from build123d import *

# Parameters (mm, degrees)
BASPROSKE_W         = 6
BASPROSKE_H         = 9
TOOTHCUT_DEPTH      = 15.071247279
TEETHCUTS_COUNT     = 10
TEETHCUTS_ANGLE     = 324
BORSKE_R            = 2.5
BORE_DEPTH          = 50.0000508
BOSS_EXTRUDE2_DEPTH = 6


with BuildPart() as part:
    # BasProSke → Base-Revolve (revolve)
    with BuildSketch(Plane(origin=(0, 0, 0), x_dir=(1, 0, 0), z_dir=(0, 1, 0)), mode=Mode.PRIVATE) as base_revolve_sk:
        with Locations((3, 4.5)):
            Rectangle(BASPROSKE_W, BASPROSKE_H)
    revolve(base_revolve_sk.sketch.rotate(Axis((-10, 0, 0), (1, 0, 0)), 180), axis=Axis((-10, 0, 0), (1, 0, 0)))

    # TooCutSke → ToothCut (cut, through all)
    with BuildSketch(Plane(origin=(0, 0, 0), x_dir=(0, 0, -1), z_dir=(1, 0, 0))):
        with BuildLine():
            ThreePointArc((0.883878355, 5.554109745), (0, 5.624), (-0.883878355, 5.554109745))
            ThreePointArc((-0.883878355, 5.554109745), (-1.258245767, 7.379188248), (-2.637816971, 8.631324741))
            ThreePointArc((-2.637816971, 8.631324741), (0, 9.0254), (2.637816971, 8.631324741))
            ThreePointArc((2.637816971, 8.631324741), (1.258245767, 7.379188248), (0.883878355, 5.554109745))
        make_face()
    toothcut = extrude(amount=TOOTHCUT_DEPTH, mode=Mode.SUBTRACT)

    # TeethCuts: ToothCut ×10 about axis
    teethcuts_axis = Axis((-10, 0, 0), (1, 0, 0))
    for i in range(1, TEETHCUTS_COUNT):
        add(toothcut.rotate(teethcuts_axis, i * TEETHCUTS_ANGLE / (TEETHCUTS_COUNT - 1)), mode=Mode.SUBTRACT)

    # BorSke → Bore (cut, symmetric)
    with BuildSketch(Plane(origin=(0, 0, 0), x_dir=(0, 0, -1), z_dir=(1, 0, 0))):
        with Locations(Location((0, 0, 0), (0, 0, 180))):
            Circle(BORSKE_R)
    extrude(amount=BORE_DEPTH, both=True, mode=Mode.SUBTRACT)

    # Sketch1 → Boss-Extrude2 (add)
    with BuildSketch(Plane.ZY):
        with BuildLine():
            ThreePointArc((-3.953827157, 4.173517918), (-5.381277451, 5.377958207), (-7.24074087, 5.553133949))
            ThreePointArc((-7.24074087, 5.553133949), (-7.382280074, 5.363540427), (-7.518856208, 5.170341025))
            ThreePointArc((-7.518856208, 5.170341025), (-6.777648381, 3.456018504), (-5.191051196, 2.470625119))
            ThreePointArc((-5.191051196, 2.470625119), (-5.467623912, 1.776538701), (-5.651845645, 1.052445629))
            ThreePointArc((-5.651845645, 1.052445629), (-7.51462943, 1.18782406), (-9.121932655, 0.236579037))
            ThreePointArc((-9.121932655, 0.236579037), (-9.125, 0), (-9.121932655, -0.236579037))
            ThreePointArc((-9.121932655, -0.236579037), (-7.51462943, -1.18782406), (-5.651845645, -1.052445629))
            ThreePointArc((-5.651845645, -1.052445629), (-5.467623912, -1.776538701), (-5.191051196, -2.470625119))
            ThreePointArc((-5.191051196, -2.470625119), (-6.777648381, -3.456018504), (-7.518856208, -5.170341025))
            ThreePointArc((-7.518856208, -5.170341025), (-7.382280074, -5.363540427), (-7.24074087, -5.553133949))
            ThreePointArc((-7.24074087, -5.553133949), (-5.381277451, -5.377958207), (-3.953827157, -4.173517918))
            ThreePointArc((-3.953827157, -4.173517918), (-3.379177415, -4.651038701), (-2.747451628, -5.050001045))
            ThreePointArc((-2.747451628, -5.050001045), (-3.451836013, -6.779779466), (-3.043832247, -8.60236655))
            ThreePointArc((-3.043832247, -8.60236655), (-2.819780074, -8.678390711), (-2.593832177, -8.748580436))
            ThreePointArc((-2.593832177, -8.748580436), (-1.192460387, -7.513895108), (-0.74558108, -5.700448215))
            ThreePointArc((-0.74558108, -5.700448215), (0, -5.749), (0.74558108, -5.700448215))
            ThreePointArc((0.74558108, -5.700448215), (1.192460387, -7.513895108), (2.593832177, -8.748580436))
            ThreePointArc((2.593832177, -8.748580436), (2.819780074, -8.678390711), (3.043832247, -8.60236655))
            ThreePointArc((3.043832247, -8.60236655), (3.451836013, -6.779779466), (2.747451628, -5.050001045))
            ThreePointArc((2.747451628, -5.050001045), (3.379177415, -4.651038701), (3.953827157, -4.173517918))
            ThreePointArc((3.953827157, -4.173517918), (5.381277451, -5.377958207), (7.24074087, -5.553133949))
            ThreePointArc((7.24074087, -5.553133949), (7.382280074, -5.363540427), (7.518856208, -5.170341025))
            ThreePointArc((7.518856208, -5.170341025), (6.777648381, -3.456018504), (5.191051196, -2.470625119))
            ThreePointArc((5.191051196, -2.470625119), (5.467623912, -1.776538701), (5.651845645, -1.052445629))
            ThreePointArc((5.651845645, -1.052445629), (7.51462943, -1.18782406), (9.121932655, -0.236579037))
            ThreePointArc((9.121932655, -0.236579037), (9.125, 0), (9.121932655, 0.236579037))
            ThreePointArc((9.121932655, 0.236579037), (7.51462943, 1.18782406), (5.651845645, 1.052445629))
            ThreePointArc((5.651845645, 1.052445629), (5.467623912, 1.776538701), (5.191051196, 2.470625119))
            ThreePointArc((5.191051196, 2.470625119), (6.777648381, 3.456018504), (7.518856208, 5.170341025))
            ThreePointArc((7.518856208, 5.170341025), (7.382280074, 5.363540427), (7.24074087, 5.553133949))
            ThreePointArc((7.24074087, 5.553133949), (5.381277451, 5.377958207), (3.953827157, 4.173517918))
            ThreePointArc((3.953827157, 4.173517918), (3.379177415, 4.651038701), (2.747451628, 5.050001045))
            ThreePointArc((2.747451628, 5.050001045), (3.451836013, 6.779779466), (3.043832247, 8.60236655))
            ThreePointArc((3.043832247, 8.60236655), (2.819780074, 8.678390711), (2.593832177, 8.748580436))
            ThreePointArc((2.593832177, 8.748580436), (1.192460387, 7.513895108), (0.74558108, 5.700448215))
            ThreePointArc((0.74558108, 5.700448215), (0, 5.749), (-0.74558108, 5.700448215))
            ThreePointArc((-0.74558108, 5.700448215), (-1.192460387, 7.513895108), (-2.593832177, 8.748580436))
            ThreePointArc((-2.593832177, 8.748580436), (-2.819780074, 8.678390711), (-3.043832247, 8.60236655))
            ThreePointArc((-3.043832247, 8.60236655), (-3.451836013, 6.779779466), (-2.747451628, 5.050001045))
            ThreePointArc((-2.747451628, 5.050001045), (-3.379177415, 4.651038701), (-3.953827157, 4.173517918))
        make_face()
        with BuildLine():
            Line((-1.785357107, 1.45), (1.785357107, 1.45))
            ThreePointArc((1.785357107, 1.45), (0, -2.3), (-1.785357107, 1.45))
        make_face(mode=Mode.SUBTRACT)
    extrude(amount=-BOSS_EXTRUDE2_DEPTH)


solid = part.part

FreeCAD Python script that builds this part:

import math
import FreeCAD as App
import Part
import Sketcher

V = App.Vector
Q = App.Units.Quantity

doc = App.newDocument("Part")
body = doc.addObject("PartDesign::Body", "Body")

# Sketch on XZ plane
sketch1 = body.newObject("Sketcher::SketchObject", "Sketch")
sketch1.AttachmentSupport = (doc.getObject("XZ_Plane"), [""])
sketch1.MapMode = "FlatFace"
sketch1.addGeometry([
    Part.LineSegment(V(0, -9, 0), V(0, 0, 0)),
    Part.LineSegment(V(0, 0, 0), V(6, 0, 0)),
    Part.LineSegment(V(6, 0, 0), V(6, -9, 0)),
    Part.LineSegment(V(6, -9, 0), V(0, -9, 0)),
], False)
sketch1.addConstraint([
    Sketcher.Constraint("Coincident", 0, 2, 1, 1),
    Sketcher.Constraint("Coincident", 1, 2, 2, 1),
    Sketcher.Constraint("Coincident", 2, 2, 3, 1),
    Sketcher.Constraint("Coincident", 3, 2, 0, 1),
    Sketcher.Constraint("Vertical", 0),
    Sketcher.Constraint("Horizontal", 1),
    Sketcher.Constraint("Vertical", 2),
    Sketcher.Constraint("Horizontal", 3),
    Sketcher.Constraint("Coincident", 0, 2, -1, 1),
    Sketcher.Constraint("DistanceX", 1, 1, 1, 2, Q("6 mm")),
    Sketcher.Constraint("DistanceY", 0, 1, 0, 2, Q("9 mm")),
])
revolution = body.newObject("PartDesign::Revolution", "Revolution")
revolution.Profile = sketch1
revolution.ReferenceAxis = (sketch1, ["H_Axis"])
revolution.Angle = 360

# Sketch on YZ plane
sketch2 = body.newObject("Sketcher::SketchObject", "Sketch001")
sketch2.AttachmentSupport = (doc.getObject("YZ_Plane"), [""])
sketch2.MapMode = "FlatFace"
sketch2.addGeometry([
    Part.ArcOfCircle(Part.Circle(V(0, 0, 0), V(0, 0, 1), 5.6), math.radians(-9.04), math.radians(9.04)),
    Part.ArcOfCircle(Part.Circle(V(5.9, -3.9, 0), V(0, 0, 1), 3), math.radians(24), math.radians(96)),
    Part.ArcOfCircle(Part.Circle(V(0, 0, 0), V(0, 0, 1), 9), math.radians(-17), math.radians(17)),
    Part.ArcOfCircle(Part.Circle(V(5.9, 3.9, 0), V(0, 0, 1), 3), math.radians(-96), math.radians(-24)),
], False)
sketch2.addConstraint([
    Sketcher.Constraint("Coincident", 0, 1, 1, 2),
    Sketcher.Constraint("Coincident", 1, 1, 2, 1),
    Sketcher.Constraint("Coincident", 2, 2, 3, 2),
    Sketcher.Constraint("Coincident", 3, 1, 0, 2),
    Sketcher.Constraint("Coincident", 0, 3, -1, 1),
    Sketcher.Constraint("Coincident", 2, 3, -1, 1),
    Sketcher.Constraint("Equal", 1, 3),
    Sketcher.Constraint("Symmetric", 1, 3, 3, 3, -1),
    Sketcher.Constraint("Radius", 1, Q("3 mm")),
    Sketcher.Constraint("Radius", 0, Q("5.624 mm")),
    Sketcher.Constraint("Radius", 2, Q("9.0254 mm")),
    Sketcher.Constraint("DistanceX", 1, 3, 1, 1, Q("2.737698 mm")),
    Sketcher.Constraint("DistanceX", -1, 1, 0, 1, Q("5.55411 mm")),
])
pocket1 = body.newObject("PartDesign::Pocket", "Pocket")
pocket1.Profile = sketch2
pocket1.Type = "ThroughAll"
pocket1.Reversed = True
doc.recompute()

polarpattern = body.newObject("PartDesign::PolarPattern", "PolarPattern")
polarpattern.Originals = [pocket1]
polarpattern.Axis = (doc.getObject("X_Axis"), [""])
polarpattern.Angle = 360
polarpattern.Occurrences = 10
body.Tip = polarpattern

# Sketch on YZ plane
sketch3 = body.newObject("Sketcher::SketchObject", "Sketch002")
sketch3.AttachmentSupport = (doc.getObject("YZ_Plane"), [""])
sketch3.MapMode = "FlatFace"
sketch3.addGeometry(Part.Circle(V(0, 0, 0), V(0, 0, 1), 2.5), False)
sketch3.addConstraint([
    Sketcher.Constraint("Coincident", 0, 3, -1, 1),
    Sketcher.Constraint("Diameter", 0, Q("5 mm")),
])
pocket2 = body.newObject("PartDesign::Pocket", "Pocket001")
pocket2.Profile = sketch3
pocket2.Length = 100.000102
pocket2.Midplane = True

# Sketch on YZ plane
sketch4 = body.newObject("Sketcher::SketchObject", "Sketch003")
sketch4.AttachmentSupport = (doc.getObject("YZ_Plane"), [""])
sketch4.MapMode = "FlatFace"
sketch4.addGeometry([
    Part.ArcOfCircle(Part.Circle(V(2.5, -6.59, 0), V(0, 0, 1), 3.13), math.radians(-12), math.radians(58)),  # 0
    Part.ArcOfCircle(Part.Circle(V(0, 0, 0), V(0, 0, 1), 9.12), math.radians(-55.49), math.radians(-52.51)),  # 1
    Part.ArcOfCircle(Part.Circle(V(5.5, -4.41, 0), V(0, 0, 1), 3.12), math.radians(-166), math.radians(-96)),  # 2
    Part.ArcOfCircle(Part.Circle(V(0, 0, 0), V(0, 0, 1), 5.75), math.radians(-79.45), math.radians(-64.55)),  # 3
    Part.ArcOfCircle(Part.Circle(V(-1.85, -6.8, 0), V(0, 0, 1), 3.13), math.radians(-48), math.radians(22)),  # 4
    Part.ArcOfCircle(Part.Circle(V(0, 0, 0), V(0, 0, 1), 9.13), math.radians(-91.49), math.radians(-88.51)),  # 5
    Part.ArcOfCircle(Part.Circle(V(1.85, -6.8, 0), V(0, 0, 1), 3.13), math.radians(158), math.radians(228)),  # 6
    Part.ArcOfCircle(Part.Circle(V(0, 0, 0), V(0, 0, 1), 5.75), math.radians(-115.45), math.radians(-100.55)),  # 7
    Part.ArcOfCircle(Part.Circle(V(-5.5, -4.41, 0), V(0, 0, 1), 3.12), math.radians(-84), math.radians(-14)),  # 8
    Part.ArcOfCircle(Part.Circle(V(0, 0, 0), V(0, 0, 1), 9.12), math.radians(-127.49), math.radians(-124.51)),  # 9
    Part.ArcOfCircle(Part.Circle(V(-2.5, -6.59, 0), V(0, 0, 1), 3.13), math.radians(122), math.radians(192)),  # 10
    Part.ArcOfCircle(Part.Circle(V(0, 0, 0), V(0, 0, 1), 5.75), math.radians(-151.45), math.radians(-136.55)),  # 11
    Part.ArcOfCircle(Part.Circle(V(-7.04, -0.34, 0), V(0, 0, 1), 3.13), math.radians(-120), math.radians(-50)),  # 12
    Part.ArcOfCircle(Part.Circle(V(0, 0, 0), V(0, 0, 1), 9.13), math.radians(-163.49), math.radians(-160.51)),  # 13
    Part.ArcOfCircle(Part.Circle(V(-5.89, -3.86, 0), V(0, 0, 1), 3.13), math.radians(86), math.radians(156)),  # 14
    Part.ArcOfCircle(Part.Circle(V(0, 0, 0), V(0, 0, 1), 5.75), math.radians(172.55), math.radians(187.45)),  # 15
    Part.ArcOfCircle(Part.Circle(V(-5.89, 3.86, 0), V(0, 0, 1), 3.13), math.radians(-156), math.radians(-86)),  # 16
    Part.ArcOfCircle(Part.Circle(V(0, 0, 0), V(0, 0, 1), 9.13), math.radians(160.51), math.radians(163.49)),  # 17
    Part.ArcOfCircle(Part.Circle(V(-7.04, 0.34, 0), V(0, 0, 1), 3.13), math.radians(50), math.radians(120)),  # 18
    Part.ArcOfCircle(Part.Circle(V(0, 0, 0), V(0, 0, 1), 5.75), math.radians(136.55), math.radians(151.45)),  # 19
    Part.ArcOfCircle(Part.Circle(V(-2.5, 6.59, 0), V(0, 0, 1), 3.13), math.radians(168), math.radians(238)),  # 20
    Part.ArcOfCircle(Part.Circle(V(0, 0, 0), V(0, 0, 1), 9.12), math.radians(124.51), math.radians(127.49)),  # 21
    Part.ArcOfCircle(Part.Circle(V(-5.5, 4.41, 0), V(0, 0, 1), 3.12), math.radians(14), math.radians(84)),  # 22
    Part.ArcOfCircle(Part.Circle(V(0, 0, 0), V(0, 0, 1), 5.75), math.radians(100.55), math.radians(115.45)),  # 23
    Part.ArcOfCircle(Part.Circle(V(1.85, 6.8, 0), V(0, 0, 1), 3.13), math.radians(132), math.radians(202)),  # 24
    Part.ArcOfCircle(Part.Circle(V(0, 0, 0), V(0, 0, 1), 9.13), math.radians(88.51), math.radians(91.49)),  # 25
    Part.ArcOfCircle(Part.Circle(V(-1.85, 6.8, 0), V(0, 0, 1), 3.13), math.radians(-22), math.radians(48)),  # 26
    Part.ArcOfCircle(Part.Circle(V(0, 0, 0), V(0, 0, 1), 5.75), math.radians(64.55), math.radians(79.45)),  # 27
    Part.ArcOfCircle(Part.Circle(V(5.5, 4.41, 0), V(0, 0, 1), 3.12), math.radians(96), math.radians(166)),  # 28
    Part.ArcOfCircle(Part.Circle(V(0, 0, 0), V(0, 0, 1), 9.12), math.radians(52.51), math.radians(55.49)),  # 29
    Part.ArcOfCircle(Part.Circle(V(2.5, 6.59, 0), V(0, 0, 1), 3.13), math.radians(-58), math.radians(12)),  # 30
    Part.ArcOfCircle(Part.Circle(V(0, 0, 0), V(0, 0, 1), 5.75), math.radians(28.55), math.radians(43.45)),  # 31
    Part.ArcOfCircle(Part.Circle(V(7.04, 0.34, 0), V(0, 0, 1), 3.13), math.radians(60), math.radians(130)),  # 32
    Part.ArcOfCircle(Part.Circle(V(0, 0, 0), V(0, 0, 1), 9.13), math.radians(16.51), math.radians(19.49)),  # 33
    Part.ArcOfCircle(Part.Circle(V(5.89, 3.86, 0), V(0, 0, 1), 3.13), math.radians(-94), math.radians(-24)),  # 34
    Part.ArcOfCircle(Part.Circle(V(0, 0, 0), V(0, 0, 1), 5.75), math.radians(-7.45), math.radians(7.45)),  # 35
    Part.ArcOfCircle(Part.Circle(V(5.89, -3.86, 0), V(0, 0, 1), 3.13), math.radians(24), math.radians(94)),  # 36
    Part.ArcOfCircle(Part.Circle(V(0, 0, 0), V(0, 0, 1), 9.13), math.radians(-19.49), math.radians(-16.51)),  # 37
    Part.ArcOfCircle(Part.Circle(V(7.04, -0.34, 0), V(0, 0, 1), 3.13), math.radians(-130), math.radians(-60)),  # 38
    Part.ArcOfCircle(Part.Circle(V(0, 0, 0), V(0, 0, 1), 5.75), math.radians(-43.45), math.radians(-28.55)),  # 39
    Part.ArcOfCircle(Part.Circle(V(0, 0, 0), V(0, 0, 1), 2.3), math.radians(51), math.radians(309)),  # 40
    Part.LineSegment(V(1.45, -1.79, 0), V(1.45, 1.79, 0)),  # 41
], False)
sketch4.addConstraint([
    Sketcher.Constraint("Coincident", 0, 1, 1, 2),
    Sketcher.Constraint("Coincident", 1, 1, 2, 2),
    Sketcher.Constraint("Coincident", 2, 1, 3, 2),
    Sketcher.Constraint("Coincident", 3, 1, 4, 2),
    Sketcher.Constraint("Coincident", 4, 1, 5, 2),
    Sketcher.Constraint("Coincident", 5, 1, 6, 2),
    Sketcher.Constraint("Coincident", 6, 1, 7, 2),
    Sketcher.Constraint("Coincident", 7, 1, 8, 2),
    Sketcher.Constraint("Coincident", 8, 1, 9, 2),
    Sketcher.Constraint("Coincident", 9, 1, 10, 2),
    Sketcher.Constraint("Coincident", 10, 1, 11, 2),
    Sketcher.Constraint("Coincident", 11, 1, 12, 2),
    Sketcher.Constraint("Coincident", 12, 1, 13, 2),
    Sketcher.Constraint("Coincident", 13, 1, 14, 2),
    Sketcher.Constraint("Coincident", 14, 1, 15, 2),
    Sketcher.Constraint("Coincident", 15, 1, 16, 2),
    Sketcher.Constraint("Coincident", 16, 1, 17, 2),
    Sketcher.Constraint("Coincident", 17, 1, 18, 2),
    Sketcher.Constraint("Coincident", 18, 1, 19, 2),
    Sketcher.Constraint("Coincident", 19, 1, 20, 2),
    Sketcher.Constraint("Coincident", 20, 1, 21, 2),
    Sketcher.Constraint("Coincident", 21, 1, 22, 2),
    Sketcher.Constraint("Coincident", 22, 1, 23, 2),
    Sketcher.Constraint("Coincident", 23, 1, 24, 2),
    Sketcher.Constraint("Coincident", 24, 1, 25, 2),
    Sketcher.Constraint("Coincident", 25, 1, 26, 2),
    Sketcher.Constraint("Coincident", 26, 1, 27, 2),
    Sketcher.Constraint("Coincident", 27, 1, 28, 2),
    Sketcher.Constraint("Coincident", 28, 1, 29, 2),
    Sketcher.Constraint("Coincident", 29, 1, 30, 2),
    Sketcher.Constraint("Coincident", 30, 1, 31, 2),
    Sketcher.Constraint("Coincident", 31, 1, 32, 2),
    Sketcher.Constraint("Coincident", 32, 1, 33, 2),
    Sketcher.Constraint("Coincident", 33, 1, 34, 2),
    Sketcher.Constraint("Coincident", 34, 1, 35, 2),
    Sketcher.Constraint("Coincident", 35, 1, 36, 2),
    Sketcher.Constraint("Coincident", 36, 1, 37, 2),
    Sketcher.Constraint("Coincident", 37, 1, 38, 2),
    Sketcher.Constraint("Coincident", 38, 1, 39, 2),
    Sketcher.Constraint("Coincident", 39, 1, 0, 2),
    Sketcher.Constraint("Coincident", 40, 1, 41, 2),
    Sketcher.Constraint("Coincident", 41, 1, 40, 2),
    Sketcher.Constraint("Vertical", 41),
    Sketcher.Constraint("Coincident", 1, 3, -1, 1),
    Sketcher.Constraint("Coincident", 3, 3, -1, 1),
    Sketcher.Constraint("Coincident", 5, 3, -1, 1),
    Sketcher.Constraint("Coincident", 7, 3, -1, 1),
    Sketcher.Constraint("Coincident", 9, 3, -1, 1),
    Sketcher.Constraint("Coincident", 11, 3, -1, 1),
    Sketcher.Constraint("Coincident", 13, 3, -1, 1),
    Sketcher.Constraint("Coincident", 15, 3, -1, 1),
    Sketcher.Constraint("Coincident", 17, 3, -1, 1),
    Sketcher.Constraint("Coincident", 19, 3, -1, 1),
    Sketcher.Constraint("Coincident", 21, 3, -1, 1),
    Sketcher.Constraint("Coincident", 23, 3, -1, 1),
    Sketcher.Constraint("Coincident", 25, 3, -1, 1),
    Sketcher.Constraint("Coincident", 27, 3, -1, 1),
    Sketcher.Constraint("Coincident", 29, 3, -1, 1),
    Sketcher.Constraint("Coincident", 31, 3, -1, 1),
    Sketcher.Constraint("Coincident", 33, 3, -1, 1),
    Sketcher.Constraint("Coincident", 35, 3, -1, 1),
    Sketcher.Constraint("Coincident", 37, 3, -1, 1),
    Sketcher.Constraint("Coincident", 39, 3, -1, 1),
    Sketcher.Constraint("Coincident", 40, 3, -1, 1),
    Sketcher.Constraint("Equal", 0, 2),
    Sketcher.Constraint("Equal", 2, 4),
    Sketcher.Constraint("Equal", 1, 5),
    Sketcher.Constraint("Equal", 4, 6),
    Sketcher.Constraint("Equal", 3, 7),
    Sketcher.Constraint("Equal", 6, 8),
    Sketcher.Constraint("Equal", 5, 9),
    Sketcher.Constraint("Equal", 8, 10),
    Sketcher.Constraint("Equal", 7, 11),
    Sketcher.Constraint("Equal", 10, 12),
    Sketcher.Constraint("Equal", 5, 13),
    Sketcher.Constraint("Equal", 12, 14),
    Sketcher.Constraint("Equal", 11, 15),
    Sketcher.Constraint("Equal", 14, 16),
    Sketcher.Constraint("Equal", 13, 17),
    Sketcher.Constraint("Equal", 16, 18),
    Sketcher.Constraint("Equal", 15, 19),
    Sketcher.Constraint("Equal", 18, 20),
    Sketcher.Constraint("Equal", 9, 21),
    Sketcher.Constraint("Equal", 20, 22),
    Sketcher.Constraint("Equal", 19, 23),
    Sketcher.Constraint("Equal", 22, 24),
    Sketcher.Constraint("Equal", 21, 25),
    Sketcher.Constraint("Equal", 24, 26),
    Sketcher.Constraint("Equal", 23, 27),
    Sketcher.Constraint("Equal", 26, 28),
    Sketcher.Constraint("Equal", 25, 29),
    Sketcher.Constraint("Equal", 28, 30),
    Sketcher.Constraint("Equal", 27, 31),
    Sketcher.Constraint("Equal", 30, 32),
    Sketcher.Constraint("Equal", 25, 33),
    Sketcher.Constraint("Equal", 32, 34),
    Sketcher.Constraint("Equal", 31, 35),
    Sketcher.Constraint("Equal", 34, 36),
    Sketcher.Constraint("Equal", 33, 37),
    Sketcher.Constraint("Equal", 36, 38),
    Sketcher.Constraint("Equal", 35, 39),
    Sketcher.Constraint("Symmetric", 0, 3, 20, 3, -1, 1),
    Sketcher.Constraint("Symmetric", 2, 3, 22, 3, -1, 1),
    Sketcher.Constraint("Symmetric", 4, 3, 24, 3, -1, 1),
    Sketcher.Constraint("Symmetric", 6, 3, 26, 3, -1, 1),
    Sketcher.Constraint("Symmetric", 8, 3, 28, 3, -1, 1),
    Sketcher.Constraint("Symmetric", 10, 3, 30, 3, -1, 1),
    Sketcher.Constraint("Symmetric", 12, 3, 32, 3, -1, 1),
    Sketcher.Constraint("Symmetric", 14, 3, 34, 3, -1, 1),
    Sketcher.Constraint("Symmetric", 16, 3, 36, 3, -1, 1),
    Sketcher.Constraint("Symmetric", 18, 3, 38, 3, -1, 1),
    Sketcher.Constraint("Symmetric", 4, 3, 6, 3, -2),
    Sketcher.Constraint("Symmetric", 2, 3, 8, 3, -2),
    Sketcher.Constraint("Symmetric", 0, 3, 10, 3, -2),
    Sketcher.Constraint("Symmetric", 18, 3, 32, 3, -2),
    Sketcher.Constraint("Symmetric", 16, 3, 34, 3, -2),
    Sketcher.Constraint("Radius", 40, Q("2.3 mm")),
    Sketcher.Constraint("Radius", 0, Q("3.125 mm")),
    Sketcher.Constraint("Radius", 1, Q("9.124999 mm")),
    Sketcher.Constraint("Radius", 3, Q("5.749 mm")),
    Sketcher.Constraint("DistanceX", 11, 1, -1, 1, Q("5.050001 mm")),
    Sketcher.Constraint("DistanceX", -1, 1, 40, 1, Q("1.45 mm")),
    Sketcher.Constraint("DistanceY", 4, 3, -1, 1, Q("6.7994 mm")),
    Sketcher.Constraint("DistanceX", 12, 3, -1, 1, Q("7.039601 mm")),
    Sketcher.Constraint("DistanceX", -1, 1, 2, 3, Q("5.496688 mm")),
    Sketcher.Constraint("DistanceY", 0, 1, -1, 1, Q("7.240741 mm")),
    Sketcher.Constraint("DistanceX", -1, 1, 1, 1, Q("5.170341 mm")),
    Sketcher.Constraint("DistanceX", -1, 1, 4, 1, Q("0.236579 mm")),
    Sketcher.Constraint("DistanceX", 13, 1, -1, 1, Q("8.74858 mm")),
    Sketcher.Constraint("DistanceX", 14, 1, -1, 1, Q("5.700448 mm")),
    Sketcher.Constraint("DistanceX", -1, 1, 0, 3, Q("2.496486 mm")),
])
pad1 = body.newObject("PartDesign::Pad", "Pad")
pad1.Profile = sketch4
pad1.Length = 6

doc.recompute()
